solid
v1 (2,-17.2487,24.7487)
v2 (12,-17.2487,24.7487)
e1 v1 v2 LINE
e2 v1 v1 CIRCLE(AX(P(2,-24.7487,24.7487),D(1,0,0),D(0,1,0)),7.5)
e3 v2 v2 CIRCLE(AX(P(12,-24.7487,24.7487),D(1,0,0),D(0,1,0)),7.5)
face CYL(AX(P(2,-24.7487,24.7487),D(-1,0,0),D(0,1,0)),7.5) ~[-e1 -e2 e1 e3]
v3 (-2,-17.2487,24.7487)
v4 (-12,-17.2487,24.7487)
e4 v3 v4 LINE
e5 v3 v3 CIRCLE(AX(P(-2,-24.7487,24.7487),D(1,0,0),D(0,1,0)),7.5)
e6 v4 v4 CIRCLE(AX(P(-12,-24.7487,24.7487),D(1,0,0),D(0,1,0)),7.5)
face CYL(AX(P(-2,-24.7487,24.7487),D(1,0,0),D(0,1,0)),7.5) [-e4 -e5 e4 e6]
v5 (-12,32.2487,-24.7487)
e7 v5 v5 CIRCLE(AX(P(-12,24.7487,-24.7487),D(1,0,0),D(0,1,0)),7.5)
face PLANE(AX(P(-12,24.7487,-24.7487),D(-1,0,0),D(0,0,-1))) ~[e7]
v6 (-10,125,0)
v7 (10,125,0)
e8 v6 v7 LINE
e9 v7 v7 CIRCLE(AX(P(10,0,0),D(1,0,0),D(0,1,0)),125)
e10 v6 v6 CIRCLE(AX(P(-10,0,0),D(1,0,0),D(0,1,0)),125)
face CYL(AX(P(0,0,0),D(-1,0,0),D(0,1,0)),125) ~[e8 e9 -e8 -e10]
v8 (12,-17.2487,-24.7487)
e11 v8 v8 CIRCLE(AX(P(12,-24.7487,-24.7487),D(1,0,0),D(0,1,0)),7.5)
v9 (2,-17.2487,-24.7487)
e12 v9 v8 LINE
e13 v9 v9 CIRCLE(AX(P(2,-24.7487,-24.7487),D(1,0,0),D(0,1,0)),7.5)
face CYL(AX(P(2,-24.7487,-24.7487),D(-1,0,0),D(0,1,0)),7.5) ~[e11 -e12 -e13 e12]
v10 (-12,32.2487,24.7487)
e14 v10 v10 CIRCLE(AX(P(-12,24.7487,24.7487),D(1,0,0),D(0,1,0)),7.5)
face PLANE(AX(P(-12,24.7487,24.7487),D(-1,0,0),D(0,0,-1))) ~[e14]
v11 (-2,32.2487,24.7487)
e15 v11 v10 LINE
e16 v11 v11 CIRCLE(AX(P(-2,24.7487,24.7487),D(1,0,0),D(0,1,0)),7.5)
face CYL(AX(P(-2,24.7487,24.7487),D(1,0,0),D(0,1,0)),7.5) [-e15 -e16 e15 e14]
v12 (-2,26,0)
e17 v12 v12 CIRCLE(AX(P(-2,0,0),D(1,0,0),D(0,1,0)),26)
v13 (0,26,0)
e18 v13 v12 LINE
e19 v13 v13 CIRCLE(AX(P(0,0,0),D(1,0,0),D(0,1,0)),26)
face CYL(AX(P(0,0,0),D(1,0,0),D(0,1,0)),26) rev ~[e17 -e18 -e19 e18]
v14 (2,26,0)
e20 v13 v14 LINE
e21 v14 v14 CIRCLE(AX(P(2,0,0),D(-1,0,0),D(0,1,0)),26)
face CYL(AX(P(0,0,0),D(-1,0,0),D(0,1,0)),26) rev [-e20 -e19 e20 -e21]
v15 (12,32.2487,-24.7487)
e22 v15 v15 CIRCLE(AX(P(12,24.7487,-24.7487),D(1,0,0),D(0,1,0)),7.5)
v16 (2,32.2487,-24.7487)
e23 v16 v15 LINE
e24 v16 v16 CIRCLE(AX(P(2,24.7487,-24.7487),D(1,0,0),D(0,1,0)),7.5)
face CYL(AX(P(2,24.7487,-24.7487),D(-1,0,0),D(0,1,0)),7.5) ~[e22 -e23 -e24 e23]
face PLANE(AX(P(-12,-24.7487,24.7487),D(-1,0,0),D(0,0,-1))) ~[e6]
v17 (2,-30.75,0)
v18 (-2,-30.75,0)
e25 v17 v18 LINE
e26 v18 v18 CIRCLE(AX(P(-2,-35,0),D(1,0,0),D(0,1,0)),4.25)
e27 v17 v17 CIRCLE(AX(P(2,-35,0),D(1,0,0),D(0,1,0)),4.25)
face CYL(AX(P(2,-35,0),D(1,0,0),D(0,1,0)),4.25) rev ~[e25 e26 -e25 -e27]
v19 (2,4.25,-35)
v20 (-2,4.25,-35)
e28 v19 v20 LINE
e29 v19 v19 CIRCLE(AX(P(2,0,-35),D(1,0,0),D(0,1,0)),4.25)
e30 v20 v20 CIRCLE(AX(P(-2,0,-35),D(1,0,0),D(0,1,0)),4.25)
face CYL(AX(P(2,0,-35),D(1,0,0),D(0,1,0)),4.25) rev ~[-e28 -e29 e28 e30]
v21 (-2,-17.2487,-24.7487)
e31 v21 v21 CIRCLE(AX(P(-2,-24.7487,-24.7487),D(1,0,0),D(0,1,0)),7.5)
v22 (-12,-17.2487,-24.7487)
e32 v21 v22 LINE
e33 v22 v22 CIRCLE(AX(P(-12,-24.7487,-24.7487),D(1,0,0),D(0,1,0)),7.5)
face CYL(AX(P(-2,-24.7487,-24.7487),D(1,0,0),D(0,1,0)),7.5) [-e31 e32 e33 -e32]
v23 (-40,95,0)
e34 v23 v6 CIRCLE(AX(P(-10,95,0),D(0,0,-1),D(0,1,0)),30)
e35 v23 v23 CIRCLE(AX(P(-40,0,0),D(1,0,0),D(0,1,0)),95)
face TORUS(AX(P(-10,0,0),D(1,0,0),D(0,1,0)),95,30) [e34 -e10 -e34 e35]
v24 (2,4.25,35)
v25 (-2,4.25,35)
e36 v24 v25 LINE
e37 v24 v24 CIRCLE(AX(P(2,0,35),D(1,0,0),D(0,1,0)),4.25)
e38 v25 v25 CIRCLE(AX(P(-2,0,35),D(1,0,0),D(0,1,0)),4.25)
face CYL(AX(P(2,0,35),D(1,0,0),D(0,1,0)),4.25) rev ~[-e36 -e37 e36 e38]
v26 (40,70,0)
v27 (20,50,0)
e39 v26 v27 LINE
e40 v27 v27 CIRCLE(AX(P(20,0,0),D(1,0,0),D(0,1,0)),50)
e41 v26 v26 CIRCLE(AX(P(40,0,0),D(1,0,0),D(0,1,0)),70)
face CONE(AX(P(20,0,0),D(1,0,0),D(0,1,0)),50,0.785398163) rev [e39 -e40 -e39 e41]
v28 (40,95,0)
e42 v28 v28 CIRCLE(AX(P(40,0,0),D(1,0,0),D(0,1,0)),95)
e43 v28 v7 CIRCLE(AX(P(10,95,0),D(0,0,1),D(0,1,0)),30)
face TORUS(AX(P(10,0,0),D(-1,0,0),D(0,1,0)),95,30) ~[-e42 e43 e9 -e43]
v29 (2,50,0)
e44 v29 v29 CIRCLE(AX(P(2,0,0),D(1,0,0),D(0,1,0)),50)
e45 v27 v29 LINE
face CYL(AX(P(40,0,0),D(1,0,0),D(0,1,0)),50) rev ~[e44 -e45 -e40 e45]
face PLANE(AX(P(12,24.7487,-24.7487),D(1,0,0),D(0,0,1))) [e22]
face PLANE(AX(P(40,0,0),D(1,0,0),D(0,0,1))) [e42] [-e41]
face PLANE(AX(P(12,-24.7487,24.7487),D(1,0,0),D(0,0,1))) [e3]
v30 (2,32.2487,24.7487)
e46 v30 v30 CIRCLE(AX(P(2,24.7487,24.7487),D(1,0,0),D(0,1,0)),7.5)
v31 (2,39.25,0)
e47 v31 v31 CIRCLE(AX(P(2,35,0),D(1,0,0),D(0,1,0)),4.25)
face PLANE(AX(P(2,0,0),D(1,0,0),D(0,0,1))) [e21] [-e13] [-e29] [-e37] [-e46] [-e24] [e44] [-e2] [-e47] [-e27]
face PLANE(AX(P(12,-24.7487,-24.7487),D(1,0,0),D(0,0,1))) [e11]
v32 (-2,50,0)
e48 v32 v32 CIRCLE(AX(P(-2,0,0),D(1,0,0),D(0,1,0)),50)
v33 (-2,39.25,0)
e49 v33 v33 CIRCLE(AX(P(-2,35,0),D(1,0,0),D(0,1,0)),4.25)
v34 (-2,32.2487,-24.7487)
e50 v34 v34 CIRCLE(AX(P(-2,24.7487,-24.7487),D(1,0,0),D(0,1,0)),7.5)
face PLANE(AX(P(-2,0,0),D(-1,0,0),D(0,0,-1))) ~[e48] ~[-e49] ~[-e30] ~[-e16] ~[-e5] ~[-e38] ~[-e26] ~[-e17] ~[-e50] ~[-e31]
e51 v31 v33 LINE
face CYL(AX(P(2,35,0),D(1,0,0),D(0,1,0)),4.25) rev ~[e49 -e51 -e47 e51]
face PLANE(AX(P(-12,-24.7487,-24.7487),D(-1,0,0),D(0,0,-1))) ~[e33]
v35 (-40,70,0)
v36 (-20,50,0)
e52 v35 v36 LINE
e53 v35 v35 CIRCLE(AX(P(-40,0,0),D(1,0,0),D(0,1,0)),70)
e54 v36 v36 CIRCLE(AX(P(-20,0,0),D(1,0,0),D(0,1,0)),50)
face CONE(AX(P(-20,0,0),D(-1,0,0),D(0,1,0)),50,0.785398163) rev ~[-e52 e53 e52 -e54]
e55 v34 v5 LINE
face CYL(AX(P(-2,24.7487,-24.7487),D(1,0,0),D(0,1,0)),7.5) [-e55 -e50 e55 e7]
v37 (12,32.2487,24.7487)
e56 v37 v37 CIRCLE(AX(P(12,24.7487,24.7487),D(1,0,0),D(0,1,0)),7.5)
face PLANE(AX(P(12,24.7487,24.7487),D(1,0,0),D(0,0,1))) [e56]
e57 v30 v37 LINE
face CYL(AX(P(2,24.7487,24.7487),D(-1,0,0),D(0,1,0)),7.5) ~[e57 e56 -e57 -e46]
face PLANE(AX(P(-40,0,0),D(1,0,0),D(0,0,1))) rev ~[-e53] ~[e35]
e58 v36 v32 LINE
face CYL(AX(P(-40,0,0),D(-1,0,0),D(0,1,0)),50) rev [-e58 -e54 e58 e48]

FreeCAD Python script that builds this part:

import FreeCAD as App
import Part
import Sketcher


def edges_at(feature, points):
    """Names of the edges that pass closest to the given points."""
    edges = feature.Shape.Edges
    near = lambda p: min(range(len(edges)), key=lambda i: edges[i].distToShape(Part.Vertex(*p))[0])
    return sorted({f"Edge{near(p) + 1}" for p in points})

doc = App.newDocument("Part")
body = doc.addObject("PartDesign::Body", "Body")

# Sketch on YZ plane
sketch1 = body.newObject("Sketcher::SketchObject", "Sketch")
sketch1.AttachmentSupport = (doc.getObject("YZ_Plane"), [""])
sketch1.MapMode = "FlatFace"
sketch1.addGeometry([
    Part.Circle(App.Vector(0, 0, 0), App.Vector(0, 0, 1), 125),
    Part.Circle(App.Vector(0, 0, 0), App.Vector(0, 0, 1), 26),
], False)
sketch1.addConstraint([
    Sketcher.Constraint("Coincident", 0, 3, -1, 1),
    Sketcher.Constraint("Coincident", 1, 3, -1, 1),
    Sketcher.Constraint("Diameter", 0, 250.0),
    Sketcher.Constraint("Diameter", 1, 52.0),
])
pad1 = body.newObject("PartDesign::Pad", "Pad")
pad1.Profile = sketch1
pad1.Length = 80
pad1.Midplane = True

# Sketch on YZ plane
sketch2 = body.newObject("Sketcher::SketchObject", "Sketch001")
sketch2.AttachmentSupport = (doc.getObject("YZ_Plane"), [""])
sketch2.MapMode = "FlatFace"
sketch2.AttachmentOffset = App.Placement(App.Vector(0, 0, 40), App.Rotation())
sketch2.addGeometry(Part.Circle(App.Vector(0, 0, 0), App.Vector(0, 0, 1), 50), False)
sketch2.addConstraint([
    Sketcher.Constraint("Coincident", 0, 3, -1, 1),
    Sketcher.Constraint("Diameter", 0, 100.0),
])
pocket1 = body.newObject("PartDesign::Pocket", "Pocket")
pocket1.Profile = sketch2
pocket1.Length = 38
doc.recompute()

chamfer = body.newObject("PartDesign::Chamfer", "Chamfer")
chamfer.Base = (pocket1, edges_at(pocket1, [(40, -50, 0)]))
chamfer.Size = 20
doc.recompute()

fillet = body.newObject("PartDesign::Fillet", "Fillet")
fillet.Base = (chamfer, edges_at(chamfer, [(40, -125, 0)]))
fillet.Radius = 30
doc.recompute()

mirrored = body.newObject("PartDesign::Mirrored", "Mirrored")
mirrored.Originals = [pocket1, chamfer, fillet]
mirrored.MirrorPlane = (doc.getObject("YZ_Plane"), [""])
body.Tip = mirrored

# Sketch on YZ plane
sketch3 = body.newObject("Sketcher::SketchObject", "Sketch002")
sketch3.AttachmentSupport = (doc.getObject("YZ_Plane"), [""])
sketch3.MapMode = "FlatFace"
sketch3.AttachmentOffset = App.Placement(App.Vector(0, 0, 2), App.Rotation())
sketch3.addGeometry([
    Part.Circle(App.Vector(0, 35, 0), App.Vector(0, 0, 1), 4.2),
    Part.Circle(App.Vector(35, 0, 0), App.Vector(0, 0, 1), 4.2),
    Part.Circle(App.Vector(0, -35, 0), App.Vector(0, 0, 1), 4.2),
    Part.Circle(App.Vector(-35, 0, 0), App.Vector(0, 0, 1), 4.2),
], False)
sketch3.addConstraint([
    Sketcher.Constraint("Equal", 0, 1),
    Sketcher.Constraint("Equal", 1, 2),
    Sketcher.Constraint("Equal", 2, 3),
    Sketcher.Constraint("Symmetric", 0, 3, 2, 3, -1, 1),
    Sketcher.Constraint("Symmetric", 1, 3, 3, 3, -1, 1),
    Sketcher.Constraint("PointOnObject", 0, 3, -2),
    Sketcher.Constraint("PointOnObject", 1, 3, -1),
    Sketcher.Constraint("Diameter", 0, 8.5),
    Sketcher.Constraint("DistanceY", -1, 1, 0, 3, 35.0),
    Sketcher.Constraint("DistanceX", -1, 1, 1, 3, 35.0),
])
pocket2 = body.newObject("PartDesign::Pocket", "Pocket001")
pocket2.Profile = sketch3
pocket2.Length = 295

# Sketch on YZ plane
sketch4 = body.newObject("Sketcher::SketchObject", "Sketch003")
sketch4.AttachmentSupport = (doc.getObject("YZ_Plane"), [""])
sketch4.MapMode = "FlatFace"
sketch4.AttachmentOffset = App.Placement(App.Vector(0, 0, 2), App.Rotation())
sketch4.addGeometry([
    Part.Circle(App.Vector(25, 25, 0), App.Vector(0, 0, 1), 8),
    Part.Circle(App.Vector(-25, 25, 0), App.Vector(0, 0, 1), 8),
    Part.Circle(App.Vector(25, -25, 0), App.Vector(0, 0, 1), 8),
    Part.Circle(App.Vector(-25, -25, 0), App.Vector(0, 0, 1), 8),
], False)
sketch4.addConstraint([
    Sketcher.Constraint("Equal", 0, 1),
    Sketcher.Constraint("Equal", 1, 2),
    Sketcher.Constraint("Equal", 2, 3),
    Sketcher.Constraint("Symmetric", 1, 3, 2, 3, -1, 1),
    Sketcher.Constraint("Symmetric", 0, 3, 3, 3, -1, 1),
    Sketcher.Constraint("Symmetric", 0, 3, 1, 3, -2),
    Sketcher.Constraint("Diameter", 0, 15.0),
    Sketcher.Constraint("DistanceX", -1, 1, 0, 3, 24.7487),
    Sketcher.Constraint("DistanceY", -1, 1, 0, 3, 24.7487),
])
pad2 = body.newObject("PartDesign::Pad", "Pad001")
pad2.Profile = sketch4
pad2.Length = 10
doc.recompute()

mirrored2 = body.newObject("PartDesign::Mirrored", "Mirrored001")
mirrored2.Originals = [pad2]
mirrored2.MirrorPlane = (doc.getObject("YZ_Plane"), [""])
body.Tip = mirrored2

doc.recompute()
